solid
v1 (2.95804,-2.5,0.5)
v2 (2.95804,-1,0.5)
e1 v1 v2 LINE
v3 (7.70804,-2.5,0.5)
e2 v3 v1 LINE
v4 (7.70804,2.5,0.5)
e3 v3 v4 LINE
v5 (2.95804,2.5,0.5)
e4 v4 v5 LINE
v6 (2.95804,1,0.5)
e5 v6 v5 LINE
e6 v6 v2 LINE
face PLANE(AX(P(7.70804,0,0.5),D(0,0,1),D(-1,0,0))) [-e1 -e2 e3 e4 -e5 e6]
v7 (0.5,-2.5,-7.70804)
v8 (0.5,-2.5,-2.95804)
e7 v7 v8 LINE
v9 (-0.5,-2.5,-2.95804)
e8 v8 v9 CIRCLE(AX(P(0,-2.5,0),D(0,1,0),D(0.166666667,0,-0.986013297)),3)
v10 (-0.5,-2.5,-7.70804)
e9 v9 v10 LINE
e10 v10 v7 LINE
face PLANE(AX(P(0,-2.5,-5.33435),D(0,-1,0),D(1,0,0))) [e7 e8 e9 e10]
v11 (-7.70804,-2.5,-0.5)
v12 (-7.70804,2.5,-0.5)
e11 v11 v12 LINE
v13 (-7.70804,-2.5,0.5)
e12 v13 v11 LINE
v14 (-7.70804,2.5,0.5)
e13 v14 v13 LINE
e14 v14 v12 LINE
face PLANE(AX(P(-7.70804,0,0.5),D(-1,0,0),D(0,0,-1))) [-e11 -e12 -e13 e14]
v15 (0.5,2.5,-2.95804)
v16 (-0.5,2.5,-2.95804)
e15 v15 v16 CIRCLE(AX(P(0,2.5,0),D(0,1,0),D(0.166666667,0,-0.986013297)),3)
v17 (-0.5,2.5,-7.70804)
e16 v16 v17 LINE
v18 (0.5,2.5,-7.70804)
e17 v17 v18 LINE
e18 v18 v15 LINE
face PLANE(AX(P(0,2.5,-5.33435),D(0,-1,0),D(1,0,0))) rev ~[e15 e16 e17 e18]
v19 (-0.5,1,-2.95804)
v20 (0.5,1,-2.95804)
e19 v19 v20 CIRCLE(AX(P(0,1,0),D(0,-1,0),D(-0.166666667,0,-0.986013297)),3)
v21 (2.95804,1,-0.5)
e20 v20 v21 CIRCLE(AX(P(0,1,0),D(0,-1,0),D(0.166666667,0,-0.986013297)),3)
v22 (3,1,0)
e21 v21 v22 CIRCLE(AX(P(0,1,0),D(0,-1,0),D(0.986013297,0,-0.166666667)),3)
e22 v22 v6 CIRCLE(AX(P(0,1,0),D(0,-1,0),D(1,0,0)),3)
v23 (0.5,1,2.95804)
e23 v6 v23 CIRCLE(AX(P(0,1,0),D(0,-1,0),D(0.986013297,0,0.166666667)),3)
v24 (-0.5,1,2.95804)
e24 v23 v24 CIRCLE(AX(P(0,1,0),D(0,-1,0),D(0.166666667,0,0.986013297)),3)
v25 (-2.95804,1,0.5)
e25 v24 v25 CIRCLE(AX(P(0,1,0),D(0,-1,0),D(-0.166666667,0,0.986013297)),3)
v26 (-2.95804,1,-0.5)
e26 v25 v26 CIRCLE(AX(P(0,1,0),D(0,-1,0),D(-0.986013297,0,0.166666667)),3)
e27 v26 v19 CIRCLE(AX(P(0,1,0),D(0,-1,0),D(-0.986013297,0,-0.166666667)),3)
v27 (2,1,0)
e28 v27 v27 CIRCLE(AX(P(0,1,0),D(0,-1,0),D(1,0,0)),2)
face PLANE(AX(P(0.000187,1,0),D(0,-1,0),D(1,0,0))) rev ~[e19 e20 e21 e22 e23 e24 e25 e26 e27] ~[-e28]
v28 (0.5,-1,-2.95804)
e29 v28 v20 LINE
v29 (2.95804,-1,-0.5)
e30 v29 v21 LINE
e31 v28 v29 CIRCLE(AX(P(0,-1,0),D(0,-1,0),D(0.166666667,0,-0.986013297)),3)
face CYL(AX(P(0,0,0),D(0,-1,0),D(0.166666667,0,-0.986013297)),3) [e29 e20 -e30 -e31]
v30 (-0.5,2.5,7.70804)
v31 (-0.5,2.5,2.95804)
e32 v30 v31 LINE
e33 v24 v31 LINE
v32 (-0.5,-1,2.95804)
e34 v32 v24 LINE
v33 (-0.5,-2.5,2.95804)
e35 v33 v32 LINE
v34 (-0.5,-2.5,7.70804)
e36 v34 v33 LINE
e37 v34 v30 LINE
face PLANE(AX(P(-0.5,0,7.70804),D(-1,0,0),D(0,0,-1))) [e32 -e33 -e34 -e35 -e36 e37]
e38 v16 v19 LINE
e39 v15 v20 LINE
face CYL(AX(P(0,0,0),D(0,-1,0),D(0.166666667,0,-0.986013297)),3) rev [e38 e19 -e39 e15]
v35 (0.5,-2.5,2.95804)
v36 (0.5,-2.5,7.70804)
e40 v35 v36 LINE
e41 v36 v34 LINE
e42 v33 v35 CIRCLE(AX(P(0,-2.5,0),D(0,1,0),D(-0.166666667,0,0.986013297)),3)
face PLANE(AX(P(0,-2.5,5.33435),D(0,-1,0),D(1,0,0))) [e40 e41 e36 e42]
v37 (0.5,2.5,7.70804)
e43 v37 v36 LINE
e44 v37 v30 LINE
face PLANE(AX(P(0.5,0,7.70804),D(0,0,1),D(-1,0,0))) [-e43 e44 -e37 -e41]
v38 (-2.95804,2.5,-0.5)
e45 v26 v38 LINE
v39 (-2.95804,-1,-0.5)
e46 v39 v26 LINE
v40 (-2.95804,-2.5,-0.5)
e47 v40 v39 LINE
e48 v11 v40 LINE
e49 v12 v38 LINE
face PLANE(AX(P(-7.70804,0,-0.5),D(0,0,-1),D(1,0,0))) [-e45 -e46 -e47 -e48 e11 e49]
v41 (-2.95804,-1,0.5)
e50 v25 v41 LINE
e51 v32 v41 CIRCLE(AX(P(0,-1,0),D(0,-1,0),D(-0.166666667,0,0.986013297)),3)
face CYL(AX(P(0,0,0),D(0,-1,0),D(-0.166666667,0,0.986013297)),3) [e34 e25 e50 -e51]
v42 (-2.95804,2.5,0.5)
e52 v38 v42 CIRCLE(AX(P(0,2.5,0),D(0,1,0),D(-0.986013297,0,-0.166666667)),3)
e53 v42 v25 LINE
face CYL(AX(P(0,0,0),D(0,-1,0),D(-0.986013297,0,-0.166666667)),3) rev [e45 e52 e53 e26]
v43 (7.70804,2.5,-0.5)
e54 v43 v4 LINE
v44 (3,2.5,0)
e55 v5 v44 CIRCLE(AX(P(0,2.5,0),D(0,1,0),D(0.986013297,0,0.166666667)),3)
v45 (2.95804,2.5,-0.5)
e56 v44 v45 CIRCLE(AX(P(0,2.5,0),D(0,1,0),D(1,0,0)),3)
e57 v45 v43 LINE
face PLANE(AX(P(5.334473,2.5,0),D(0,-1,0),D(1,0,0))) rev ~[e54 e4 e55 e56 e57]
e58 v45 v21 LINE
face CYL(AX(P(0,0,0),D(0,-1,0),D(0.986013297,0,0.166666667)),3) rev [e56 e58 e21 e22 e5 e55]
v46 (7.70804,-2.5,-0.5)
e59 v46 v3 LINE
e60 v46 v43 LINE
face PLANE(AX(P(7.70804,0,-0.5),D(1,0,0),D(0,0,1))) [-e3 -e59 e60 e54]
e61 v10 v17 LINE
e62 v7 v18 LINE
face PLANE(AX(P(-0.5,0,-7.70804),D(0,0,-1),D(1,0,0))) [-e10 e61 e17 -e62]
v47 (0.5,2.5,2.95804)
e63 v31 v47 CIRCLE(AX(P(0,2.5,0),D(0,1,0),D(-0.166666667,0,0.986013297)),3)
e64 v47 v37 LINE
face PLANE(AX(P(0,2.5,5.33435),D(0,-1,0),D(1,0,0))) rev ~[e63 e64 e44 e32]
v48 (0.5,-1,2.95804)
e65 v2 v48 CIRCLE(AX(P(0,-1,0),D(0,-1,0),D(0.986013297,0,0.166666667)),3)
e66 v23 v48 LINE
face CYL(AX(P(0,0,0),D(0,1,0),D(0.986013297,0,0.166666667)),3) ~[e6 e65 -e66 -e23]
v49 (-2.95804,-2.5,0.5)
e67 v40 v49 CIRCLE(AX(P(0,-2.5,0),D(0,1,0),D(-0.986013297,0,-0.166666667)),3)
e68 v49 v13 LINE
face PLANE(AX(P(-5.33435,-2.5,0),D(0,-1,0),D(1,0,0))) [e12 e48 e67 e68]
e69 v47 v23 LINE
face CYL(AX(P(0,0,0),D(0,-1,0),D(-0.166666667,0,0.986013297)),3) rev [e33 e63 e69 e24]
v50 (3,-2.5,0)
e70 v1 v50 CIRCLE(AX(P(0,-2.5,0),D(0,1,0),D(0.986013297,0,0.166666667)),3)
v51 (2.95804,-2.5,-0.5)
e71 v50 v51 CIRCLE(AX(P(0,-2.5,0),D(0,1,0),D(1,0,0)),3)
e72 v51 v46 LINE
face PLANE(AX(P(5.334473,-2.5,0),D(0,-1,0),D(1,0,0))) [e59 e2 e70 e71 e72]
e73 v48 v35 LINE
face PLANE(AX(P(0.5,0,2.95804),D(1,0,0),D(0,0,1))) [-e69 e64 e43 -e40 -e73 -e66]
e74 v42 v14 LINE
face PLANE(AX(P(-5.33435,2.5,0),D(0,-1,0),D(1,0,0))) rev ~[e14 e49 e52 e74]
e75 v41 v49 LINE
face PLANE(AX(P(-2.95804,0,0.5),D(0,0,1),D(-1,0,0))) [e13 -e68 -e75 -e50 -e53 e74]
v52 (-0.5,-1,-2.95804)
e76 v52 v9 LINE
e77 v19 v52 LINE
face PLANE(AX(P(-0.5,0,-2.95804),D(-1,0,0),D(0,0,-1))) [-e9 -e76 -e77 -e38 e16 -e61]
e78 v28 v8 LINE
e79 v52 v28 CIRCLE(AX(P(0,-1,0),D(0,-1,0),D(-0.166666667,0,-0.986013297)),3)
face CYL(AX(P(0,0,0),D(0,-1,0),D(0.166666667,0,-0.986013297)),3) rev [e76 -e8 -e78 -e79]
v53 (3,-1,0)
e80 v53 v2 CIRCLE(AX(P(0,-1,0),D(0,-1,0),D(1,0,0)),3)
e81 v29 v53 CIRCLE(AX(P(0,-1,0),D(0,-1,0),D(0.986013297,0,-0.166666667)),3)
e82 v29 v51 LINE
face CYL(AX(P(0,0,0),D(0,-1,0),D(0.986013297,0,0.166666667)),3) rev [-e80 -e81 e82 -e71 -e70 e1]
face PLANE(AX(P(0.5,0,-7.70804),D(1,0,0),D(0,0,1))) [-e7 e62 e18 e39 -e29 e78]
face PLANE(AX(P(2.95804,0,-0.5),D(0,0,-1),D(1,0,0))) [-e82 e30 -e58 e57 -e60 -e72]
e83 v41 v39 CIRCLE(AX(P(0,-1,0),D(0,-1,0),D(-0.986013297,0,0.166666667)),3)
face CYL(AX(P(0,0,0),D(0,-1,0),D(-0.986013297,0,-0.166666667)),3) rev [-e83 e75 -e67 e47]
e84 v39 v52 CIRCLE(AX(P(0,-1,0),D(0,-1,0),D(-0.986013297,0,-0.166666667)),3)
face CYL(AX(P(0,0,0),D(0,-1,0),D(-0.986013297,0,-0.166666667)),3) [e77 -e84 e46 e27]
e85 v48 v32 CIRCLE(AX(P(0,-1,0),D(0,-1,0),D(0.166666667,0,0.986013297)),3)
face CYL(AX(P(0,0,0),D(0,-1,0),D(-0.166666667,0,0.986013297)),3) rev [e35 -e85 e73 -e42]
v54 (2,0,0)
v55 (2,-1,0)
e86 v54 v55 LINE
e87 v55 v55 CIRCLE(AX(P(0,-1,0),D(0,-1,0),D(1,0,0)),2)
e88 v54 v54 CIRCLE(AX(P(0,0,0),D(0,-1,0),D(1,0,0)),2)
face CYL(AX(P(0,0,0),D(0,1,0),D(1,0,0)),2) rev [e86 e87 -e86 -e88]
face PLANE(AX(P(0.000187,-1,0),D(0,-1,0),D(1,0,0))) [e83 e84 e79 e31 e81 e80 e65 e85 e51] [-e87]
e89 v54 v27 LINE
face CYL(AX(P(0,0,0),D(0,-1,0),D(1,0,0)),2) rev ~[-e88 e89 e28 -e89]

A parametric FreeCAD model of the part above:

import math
import FreeCAD as App
import Part
import Sketcher

V = App.Vector
Q = App.Units.Quantity

doc = App.newDocument("Part")
body = doc.addObject("PartDesign::Body", "Body")

# Sketch on XZ plane
sketch1 = body.newObject("Sketcher::SketchObject", "Sketch")
sketch1.AttachmentSupport = (doc.getObject("XZ_Plane"), [""])
sketch1.MapMode = "FlatFace"
sketch1.addGeometry(Part.ArcOfCircle(Part.Circle(V(0, 0, 0), V(0, 0, 1), 3), math.radians(80.405932), math.radians(99.594068)), False)
sketch1.addGeometry(Part.LineSegment(V(0.5, 2.95804, 0), V(0.5, 7.70804, 0)), False)
sketch1.addGeometry(Part.LineSegment(V(0.5, 7.70804, 0), V(-0.5, 7.70804, 0)), False)
sketch1.addGeometry(Part.LineSegment(V(-0.5, 7.70804, 0), V(-0.5, 2.95804, 0)), False)
sketch1.addConstraint(Sketcher.Constraint("Coincident", 0, 1, 1, 1))
sketch1.addConstraint(Sketcher.Constraint("Coincident", 1, 2, 2, 1))
sketch1.addConstraint(Sketcher.Constraint("Coincident", 2, 2, 3, 1))
sketch1.addConstraint(Sketcher.Constraint("Coincident", 3, 2, 0, 2))
sketch1.addConstraint(Sketcher.Constraint("Vertical", 1))
sketch1.addConstraint(Sketcher.Constraint("Horizontal", 2))
sketch1.addConstraint(Sketcher.Constraint("Vertical", 3))
sketch1.addConstraint(Sketcher.Constraint("Coincident", 0, 3, -1, 1))
sketch1.addConstraint(Sketcher.Constraint("Horizontal", 0, 1, 3, 2))
sketch1.addConstraint(Sketcher.Constraint("Radius", 0, Q("3 mm")))
sketch1.addConstraint(Sketcher.Constraint("DistanceX", 2, 2, 2, 1, Q("1 mm")))
sketch1.addConstraint(Sketcher.Constraint("DistanceY", 1, 1, 1, 2, Q("4.75 mm")))
pad1 = body.newObject("PartDesign::Pad", "Pad")
pad1.Profile = sketch1
pad1.Length = 5
pad1.Midplane = True
body2 = doc.addObject("PartDesign::Body", "Body001")

# Sketch on XZ plane
sketch2 = body2.newObject("Sketcher::SketchObject", "Sketch001")
sketch2.AttachmentSupport = (doc.getObject("XZ_Plane001"), [""])
sketch2.MapMode = "FlatFace"
sketch2.addGeometry(Part.ArcOfCircle(Part.Circle(V(0, 0, 0), V(0, 0, 1), 3), math.radians(170.405932), math.radians(189.594068)), False)
sketch2.addGeometry(Part.LineSegment(V(-2.95804, 0.5, 0), V(-7.70804, 0.5, 0)), False)
sketch2.addGeometry(Part.LineSegment(V(-7.70804, 0.5, 0), V(-7.70804, -0.5, 0)), False)
sketch2.addGeometry(Part.LineSegment(V(-7.70804, -0.5, 0), V(-2.95804, -0.5, 0)), False)
sketch2.addConstraint(Sketcher.Constraint("Coincident", 0, 1, 1, 1))
sketch2.addConstraint(Sketcher.Constraint("Coincident", 1, 2, 2, 1))
sketch2.addConstraint(Sketcher.Constraint("Coincident", 2, 2, 3, 1))
sketch2.addConstraint(Sketcher.Constraint("Coincident", 3, 2, 0, 2))
sketch2.addConstraint(Sketcher.Constraint("Horizontal", 1))
sketch2.addConstraint(Sketcher.Constraint("Vertical", 2))
sketch2.addConstraint(Sketcher.Constraint("Horizontal", 3))
sketch2.addConstraint(Sketcher.Constraint("Coincident", 0, 3, -1, 1))
sketch2.addConstraint(Sketcher.Constraint("Vertical", 0, 1, 3, 2))
sketch2.addConstraint(Sketcher.Constraint("Radius", 0, Q("3 mm")))
sketch2.addConstraint(Sketcher.Constraint("DistanceY", 2, 2, 2, 1, Q("1 mm")))
sketch2.addConstraint(Sketcher.Constraint("DistanceX", 1, 2, 1, 1, Q("4.75 mm")))
pad2 = body2.newObject("PartDesign::Pad", "Pad001")
pad2.Profile = sketch2
pad2.Length = 5
pad2.Midplane = True
body3 = doc.addObject("PartDesign::Body", "Body002")

# Sketch on XZ plane
sketch3 = body3.newObject("Sketcher::SketchObject", "Sketch002")
sketch3.AttachmentSupport = (doc.getObject("XZ_Plane002"), [""])
sketch3.MapMode = "FlatFace"
sketch3.addGeometry(Part.LineSegment(V(0.5, -7.70804, 0), V(0.5, -2.95804, 0)), False)
sketch3.addGeometry(Part.ArcOfCircle(Part.Circle(V(0, 0, 0), V(0, 0, 1), 3), math.radians(-99.594068), math.radians(-80.405932)), False)
sketch3.addGeometry(Part.LineSegment(V(-0.5, -2.95804, 0), V(-0.5, -7.70804, 0)), False)
sketch3.addGeometry(Part.LineSegment(V(-0.5, -7.70804, 0), V(0.5, -7.70804, 0)), False)
sketch3.addConstraint(Sketcher.Constraint("Coincident", 0, 2, 1, 2))
sketch3.addConstraint(Sketcher.Constraint("Coincident", 1, 1, 2, 1))
sketch3.addConstraint(Sketcher.Constraint("Coincident", 2, 2, 3, 1))
sketch3.addConstraint(Sketcher.Constraint("Coincident", 3, 2, 0, 1))
sketch3.addConstraint(Sketcher.Constraint("Vertical", 0))
sketch3.addConstraint(Sketcher.Constraint("Vertical", 2))
sketch3.addConstraint(Sketcher.Constraint("Horizontal", 3))
sketch3.addConstraint(Sketcher.Constraint("Coincident", 1, 3, -1, 1))
sketch3.addConstraint(Sketcher.Constraint("Horizontal", 0, 2, 1, 1))
sketch3.addConstraint(Sketcher.Constraint("Radius", 1, Q("3 mm")))
sketch3.addConstraint(Sketcher.Constraint("DistanceX", 3, 1, 3, 2, Q("1 mm")))
sketch3.addConstraint(Sketcher.Constraint("DistanceY", 0, 1, 0, 2, Q("4.75 mm")))
pad3 = body3.newObject("PartDesign::Pad", "Pad002")
pad3.Profile = sketch3
pad3.Length = 5
pad3.Midplane = True
body4 = doc.addObject("PartDesign::Body", "Body003")

# Sketch on XZ plane
sketch4 = body4.newObject("Sketcher::SketchObject", "Sketch003")
sketch4.AttachmentSupport = (doc.getObject("XZ_Plane003"), [""])
sketch4.MapMode = "FlatFace"
sketch4.addGeometry(Part.ArcOfCircle(Part.Circle(V(0, 0, 0), V(0, 0, 1), 3), math.radians(0), math.radians(9.594068)), False)
sketch4.addGeometry(Part.ArcOfCircle(Part.Circle(V(0, 0, 0), V(0, 0, 1), 3), math.radians(-9.594068), math.radians(0)), False)
sketch4.addGeometry(Part.LineSegment(V(2.95804, -0.5, 0), V(7.70804, -0.5, 0)), False)
sketch4.addGeometry(Part.LineSegment(V(7.70804, -0.5, 0), V(7.70804, 0.5, 0)), False)
sketch4.addGeometry(Part.LineSegment(V(7.70804, 0.5, 0), V(2.95804, 0.5, 0)), False)
sketch4.addConstraint(Sketcher.Constraint("Tangent", 0, 1, 1, 2))
sketch4.addConstraint(Sketcher.Constraint("Coincident", 1, 1, 2, 1))
sketch4.addConstraint(Sketcher.Constraint("Coincident", 2, 2, 3, 1))
sketch4.addConstraint(Sketcher.Constraint("Coincident", 3, 2, 4, 1))
sketch4.addConstraint(Sketcher.Constraint("Coincident", 4, 2, 0, 2))
sketch4.addConstraint(Sketcher.Constraint("Horizontal", 2))
sketch4.addConstraint(Sketcher.Constraint("Vertical", 3))
sketch4.addConstraint(Sketcher.Constraint("Horizontal", 4))
sketch4.addConstraint(Sketcher.Constraint("Coincident", 0, 3, -1, 1))
sketch4.addConstraint(Sketcher.Constraint("Equal", 0, 1))
sketch4.addConstraint(Sketcher.Constraint("PointOnObject", 0, 1, -1))
sketch4.addConstraint(Sketcher.Constraint("Vertical", 1, 1, 4, 2))
sketch4.addConstraint(Sketcher.Constraint("Radius", 0, Q("3 mm")))
sketch4.addConstraint(Sketcher.Constraint("DistanceY", 3, 1, 3, 2, Q("1 mm")))
sketch4.addConstraint(Sketcher.Constraint("DistanceX", 2, 1, 2, 2, Q("4.75 mm")))
pad4 = body4.newObject("PartDesign::Pad", "Pad003")
pad4.Profile = sketch4
pad4.Length = 5
pad4.Midplane = True
body.AllowCompound = True
doc.recompute()

boolean = body.newObject("PartDesign::Boolean", "Boolean")
boolean.Type = "Fuse"
boolean.addObjects([body2])
doc.recompute()

boolean2 = body.newObject("PartDesign::Boolean", "Boolean001")
boolean2.Type = "Fuse"
boolean2.addObjects([body3])
doc.recompute()

boolean3 = body.newObject("PartDesign::Boolean", "Boolean002")
boolean3.Type = "Fuse"
boolean3.addObjects([body4])

# Sketch on XZ plane
sketch5 = body.newObject("Sketcher::SketchObject", "Sketch004")
sketch5.AttachmentSupport = (doc.getObject("XZ_Plane"), [""])
sketch5.MapMode = "FlatFace"
sketch5.addGeometry(Part.ArcOfCircle(Part.Circle(V(0, 0, 0), V(0, 0, 1), 3), math.radians(-9.594068), math.radians(0)), False)
sketch5.addGeometry(Part.ArcOfCircle(Part.Circle(V(0, 0, 0), V(0, 0, 1), 3), math.radians(0), math.radians(9.594068)), False)
sketch5.addGeometry(Part.ArcOfCircle(Part.Circle(V(0, 0, 0), V(0, 0, 1), 3), math.radians(9.594068), math.radians(80.405932)), False)
sketch5.addGeometry(Part.ArcOfCircle(Part.Circle(V(0, 0, 0), V(0, 0, 1), 3), math.radians(80.405932), math.radians(99.594068)), False)
sketch5.addGeometry(Part.ArcOfCircle(Part.Circle(V(0, 0, 0), V(0, 0, 1), 3), math.radians(99.594068), math.radians(170.405932)), False)
sketch5.addGeometry(Part.ArcOfCircle(Part.Circle(V(0, 0, 0), V(0, 0, 1), 3), math.radians(170.405932), math.radians(189.594068)), False)
sketch5.addGeometry(Part.ArcOfCircle(Part.Circle(V(0, 0, 0), V(0, 0, 1), 3), math.radians(-170.405932), math.radians(-99.594068)), False)
sketch5.addGeometry(Part.ArcOfCircle(Part.Circle(V(0, 0, 0), V(0, 0, 1), 3), math.radians(-99.594068), math.radians(-80.405932)), False)
sketch5.addGeometry(Part.ArcOfCircle(Part.Circle(V(0, 0, 0), V(0, 0, 1), 3), math.radians(-80.405932), math.radians(-9.594068)), False)
sketch5.addGeometry(Part.Circle(V(0, 0, 0), V(0, 0, 1), 2), False)
sketch5.addConstraint(Sketcher.Constraint("Tangent", 0, 2, 1, 1))
sketch5.addConstraint(Sketcher.Constraint("Tangent", 1, 2, 2, 1))
sketch5.addConstraint(Sketcher.Constraint("Tangent", 2, 2, 3, 1))
sketch5.addConstraint(Sketcher.Constraint("Tangent", 3, 2, 4, 1))
sketch5.addConstraint(Sketcher.Constraint("Tangent", 4, 2, 5, 1))
sketch5.addConstraint(Sketcher.Constraint("Tangent", 5, 2, 6, 1))
sketch5.addConstraint(Sketcher.Constraint("Tangent", 6, 2, 7, 1))
sketch5.addConstraint(Sketcher.Constraint("Tangent", 7, 2, 8, 1))
sketch5.addConstraint(Sketcher.Constraint("Tangent", 8, 2, 0, 1))
sketch5.addConstraint(Sketcher.Constraint("Coincident", 0, 3, -1, 1))
sketch5.addConstraint(Sketcher.Constraint("Coincident", 2, 3, -1, 1))
sketch5.addConstraint(Sketcher.Constraint("Coincident", 4, 3, -1, 1))
sketch5.addConstraint(Sketcher.Constraint("Coincident", 6, 3, -1, 1))
sketch5.addConstraint(Sketcher.Constraint("Coincident", 9, 3, -1, 1))
sketch5.addConstraint(Sketcher.Constraint("PointOnObject", 0, 2, -1))
sketch5.addConstraint(Sketcher.Constraint("Horizontal", 2, 2, 3, 2))
sketch5.addConstraint(Sketcher.Constraint("Horizontal", 1, 2, 4, 2))
sketch5.addConstraint(Sketcher.Constraint("Horizontal", 6, 2, 7, 2))
sketch5.addConstraint(Sketcher.Constraint("Horizontal", 5, 2, 8, 2))
sketch5.addConstraint(Sketcher.Constraint("Vertical", 4, 2, 5, 2))
sketch5.addConstraint(Sketcher.Constraint("Vertical", 3, 2, 6, 2))
sketch5.addConstraint(Sketcher.Constraint("Diameter", 9, Q("4 mm")))
sketch5.addConstraint(Sketcher.Constraint("Radius", 0, Q("3 mm")))
sketch5.addConstraint(Sketcher.Constraint("DistanceX", 3, 2, 2, 2, Q("1 mm")))
sketch5.addConstraint(Sketcher.Constraint("DistanceY", 5, 2, 4, 2, Q("1 mm")))
pad5 = body.newObject("PartDesign::Pad", "Pad004")
pad5.Profile = sketch5
pad5.Length = 2
pad5.Midplane = True

doc.recompute()
